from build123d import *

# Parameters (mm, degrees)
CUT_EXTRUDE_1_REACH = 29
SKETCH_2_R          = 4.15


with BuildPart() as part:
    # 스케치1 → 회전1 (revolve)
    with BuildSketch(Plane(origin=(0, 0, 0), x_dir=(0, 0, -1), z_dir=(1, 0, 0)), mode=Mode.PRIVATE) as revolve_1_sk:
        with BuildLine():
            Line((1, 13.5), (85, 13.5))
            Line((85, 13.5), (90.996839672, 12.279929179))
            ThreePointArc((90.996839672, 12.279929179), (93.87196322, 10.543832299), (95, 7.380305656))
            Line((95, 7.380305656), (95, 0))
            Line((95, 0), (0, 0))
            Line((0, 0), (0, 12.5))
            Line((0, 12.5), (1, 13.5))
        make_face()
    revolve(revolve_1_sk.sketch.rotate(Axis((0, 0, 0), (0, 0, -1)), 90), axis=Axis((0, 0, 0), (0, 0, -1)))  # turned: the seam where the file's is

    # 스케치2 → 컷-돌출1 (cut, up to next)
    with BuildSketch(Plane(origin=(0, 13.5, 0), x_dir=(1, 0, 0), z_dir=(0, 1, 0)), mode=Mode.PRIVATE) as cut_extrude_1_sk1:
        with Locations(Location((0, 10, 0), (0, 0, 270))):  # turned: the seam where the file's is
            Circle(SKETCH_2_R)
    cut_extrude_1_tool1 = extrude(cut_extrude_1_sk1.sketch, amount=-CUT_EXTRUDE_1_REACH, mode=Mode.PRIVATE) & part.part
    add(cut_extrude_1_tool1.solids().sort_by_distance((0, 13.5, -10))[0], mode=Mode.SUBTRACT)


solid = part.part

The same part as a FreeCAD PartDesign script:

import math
import FreeCAD as App
import Part
import Sketcher
Q = App.Units.Quantity

doc = App.newDocument("Part")
body = doc.addObject("PartDesign::Body", "Body")

sketch1 = body.newObject("Sketcher::SketchObject", "Sketch")
sketch1.AttachmentSupport = (doc.getObject("YZ_Plane"), [""])
sketch1.MapMode = "FlatFace"
sketch1.addGeometry(Part.LineSegment(App.Vector(13.5, -85, 0), App.Vector(13.5, -1, 0)), False)
sketch1.addGeometry(Part.LineSegment(App.Vector(13.5, -1, 0), App.Vector(12.5, 0, 0)), False)
sketch1.addGeometry(Part.LineSegment(App.Vector(12.5, 0, 0), App.Vector(0, 0, 0)), False)
sketch1.addGeometry(Part.LineSegment(App.Vector(0, 0, 0), App.Vector(0, -95, 0)), False)
sketch1.addGeometry(Part.LineSegment(App.Vector(0, -95, 0), App.Vector(7.380306, -95, 0)), False)
sketch1.addGeometry(Part.ArcOfCircle(Part.Circle(App.Vector(7.380306, -90, 0), App.Vector(0, 0, 1), 5), math.radians(-90), math.radians(-11.5)), False)
sketch1.addGeometry(Part.LineSegment(App.Vector(12.279929, -90.99684, 0), App.Vector(13.5, -85, 0)), False)
sketch1.addConstraint(Sketcher.Constraint("Coincident", 0, 2, 1, 1))
sketch1.addConstraint(Sketcher.Constraint("Coincident", 1, 2, 2, 1))
sketch1.addConstraint(Sketcher.Constraint("Coincident", 2, 2, 3, 1))
sketch1.addConstraint(Sketcher.Constraint("Coincident", 3, 2, 4, 1))
sketch1.addConstraint(Sketcher.Constraint("Tangent", 4, 2, 5, 1))
sketch1.addConstraint(Sketcher.Constraint("Tangent", 5, 2, 6, 1))
sketch1.addConstraint(Sketcher.Constraint("Coincident", 6, 2, 0, 1))
sketch1.addConstraint(Sketcher.Constraint("Vertical", 0))
sketch1.addConstraint(Sketcher.Constraint("Horizontal", 2))
sketch1.addConstraint(Sketcher.Constraint("Vertical", 3))
sketch1.addConstraint(Sketcher.Constraint("Horizontal", 4))
sketch1.addConstraint(Sketcher.Constraint("Coincident", 2, 2, -1, 1))
sketch1.addConstraint(Sketcher.Constraint("Radius", 5, Q("5 mm")))
sketch1.addConstraint(Sketcher.Constraint("DistanceY", 0, 1, 0, 2, Q("84 mm")))
sketch1.addConstraint(Sketcher.Constraint("DistanceY", 3, 2, 3, 1, Q("95 mm")))
sketch1.addConstraint(Sketcher.Constraint("Angle", 1, Q("135 deg")))
sketch1.addConstraint(Sketcher.Constraint("DistanceX", 2, 2, 2, 1, Q("12.5 mm")))
sketch1.addConstraint(Sketcher.Constraint("DistanceY", 0, 2, -1, 1, Q("1 mm")))
sketch1.addConstraint(Sketcher.Constraint("Angle", 6, Q("78.5 deg")))
revolution = body.newObject("PartDesign::Revolution", "Revolution")
revolution.Profile = sketch1
revolution.ReferenceAxis = (sketch1, ["V_Axis"])
revolution.Angle = 360

sketch2 = body.newObject("Sketcher::SketchObject", "Sketch001")
sketch2.AttachmentSupport = (doc.getObject("XZ_Plane"), [""])
sketch2.MapMode = "FlatFace"
sketch2.AttachmentOffset = App.Placement(App.Vector(0, 0, -13.5), App.Rotation())
sketch2.addGeometry(Part.Circle(App.Vector(0, -10, 0), App.Vector(0, 0, 1), 4.15), False)
sketch2.addConstraint(Sketcher.Constraint("PointOnObject", 0, 3, -2))
sketch2.addConstraint(Sketcher.Constraint("Diameter", 0, Q("8.3 mm")))
sketch2.addConstraint(Sketcher.Constraint("DistanceY", 0, 3, -1, 1, Q("10 mm")))
pocket1 = body.newObject("PartDesign::Pocket", "Pocket")
pocket1.Profile = sketch2
pocket1.Length = 27
pocket1.Reversed = True

doc.recompute()
